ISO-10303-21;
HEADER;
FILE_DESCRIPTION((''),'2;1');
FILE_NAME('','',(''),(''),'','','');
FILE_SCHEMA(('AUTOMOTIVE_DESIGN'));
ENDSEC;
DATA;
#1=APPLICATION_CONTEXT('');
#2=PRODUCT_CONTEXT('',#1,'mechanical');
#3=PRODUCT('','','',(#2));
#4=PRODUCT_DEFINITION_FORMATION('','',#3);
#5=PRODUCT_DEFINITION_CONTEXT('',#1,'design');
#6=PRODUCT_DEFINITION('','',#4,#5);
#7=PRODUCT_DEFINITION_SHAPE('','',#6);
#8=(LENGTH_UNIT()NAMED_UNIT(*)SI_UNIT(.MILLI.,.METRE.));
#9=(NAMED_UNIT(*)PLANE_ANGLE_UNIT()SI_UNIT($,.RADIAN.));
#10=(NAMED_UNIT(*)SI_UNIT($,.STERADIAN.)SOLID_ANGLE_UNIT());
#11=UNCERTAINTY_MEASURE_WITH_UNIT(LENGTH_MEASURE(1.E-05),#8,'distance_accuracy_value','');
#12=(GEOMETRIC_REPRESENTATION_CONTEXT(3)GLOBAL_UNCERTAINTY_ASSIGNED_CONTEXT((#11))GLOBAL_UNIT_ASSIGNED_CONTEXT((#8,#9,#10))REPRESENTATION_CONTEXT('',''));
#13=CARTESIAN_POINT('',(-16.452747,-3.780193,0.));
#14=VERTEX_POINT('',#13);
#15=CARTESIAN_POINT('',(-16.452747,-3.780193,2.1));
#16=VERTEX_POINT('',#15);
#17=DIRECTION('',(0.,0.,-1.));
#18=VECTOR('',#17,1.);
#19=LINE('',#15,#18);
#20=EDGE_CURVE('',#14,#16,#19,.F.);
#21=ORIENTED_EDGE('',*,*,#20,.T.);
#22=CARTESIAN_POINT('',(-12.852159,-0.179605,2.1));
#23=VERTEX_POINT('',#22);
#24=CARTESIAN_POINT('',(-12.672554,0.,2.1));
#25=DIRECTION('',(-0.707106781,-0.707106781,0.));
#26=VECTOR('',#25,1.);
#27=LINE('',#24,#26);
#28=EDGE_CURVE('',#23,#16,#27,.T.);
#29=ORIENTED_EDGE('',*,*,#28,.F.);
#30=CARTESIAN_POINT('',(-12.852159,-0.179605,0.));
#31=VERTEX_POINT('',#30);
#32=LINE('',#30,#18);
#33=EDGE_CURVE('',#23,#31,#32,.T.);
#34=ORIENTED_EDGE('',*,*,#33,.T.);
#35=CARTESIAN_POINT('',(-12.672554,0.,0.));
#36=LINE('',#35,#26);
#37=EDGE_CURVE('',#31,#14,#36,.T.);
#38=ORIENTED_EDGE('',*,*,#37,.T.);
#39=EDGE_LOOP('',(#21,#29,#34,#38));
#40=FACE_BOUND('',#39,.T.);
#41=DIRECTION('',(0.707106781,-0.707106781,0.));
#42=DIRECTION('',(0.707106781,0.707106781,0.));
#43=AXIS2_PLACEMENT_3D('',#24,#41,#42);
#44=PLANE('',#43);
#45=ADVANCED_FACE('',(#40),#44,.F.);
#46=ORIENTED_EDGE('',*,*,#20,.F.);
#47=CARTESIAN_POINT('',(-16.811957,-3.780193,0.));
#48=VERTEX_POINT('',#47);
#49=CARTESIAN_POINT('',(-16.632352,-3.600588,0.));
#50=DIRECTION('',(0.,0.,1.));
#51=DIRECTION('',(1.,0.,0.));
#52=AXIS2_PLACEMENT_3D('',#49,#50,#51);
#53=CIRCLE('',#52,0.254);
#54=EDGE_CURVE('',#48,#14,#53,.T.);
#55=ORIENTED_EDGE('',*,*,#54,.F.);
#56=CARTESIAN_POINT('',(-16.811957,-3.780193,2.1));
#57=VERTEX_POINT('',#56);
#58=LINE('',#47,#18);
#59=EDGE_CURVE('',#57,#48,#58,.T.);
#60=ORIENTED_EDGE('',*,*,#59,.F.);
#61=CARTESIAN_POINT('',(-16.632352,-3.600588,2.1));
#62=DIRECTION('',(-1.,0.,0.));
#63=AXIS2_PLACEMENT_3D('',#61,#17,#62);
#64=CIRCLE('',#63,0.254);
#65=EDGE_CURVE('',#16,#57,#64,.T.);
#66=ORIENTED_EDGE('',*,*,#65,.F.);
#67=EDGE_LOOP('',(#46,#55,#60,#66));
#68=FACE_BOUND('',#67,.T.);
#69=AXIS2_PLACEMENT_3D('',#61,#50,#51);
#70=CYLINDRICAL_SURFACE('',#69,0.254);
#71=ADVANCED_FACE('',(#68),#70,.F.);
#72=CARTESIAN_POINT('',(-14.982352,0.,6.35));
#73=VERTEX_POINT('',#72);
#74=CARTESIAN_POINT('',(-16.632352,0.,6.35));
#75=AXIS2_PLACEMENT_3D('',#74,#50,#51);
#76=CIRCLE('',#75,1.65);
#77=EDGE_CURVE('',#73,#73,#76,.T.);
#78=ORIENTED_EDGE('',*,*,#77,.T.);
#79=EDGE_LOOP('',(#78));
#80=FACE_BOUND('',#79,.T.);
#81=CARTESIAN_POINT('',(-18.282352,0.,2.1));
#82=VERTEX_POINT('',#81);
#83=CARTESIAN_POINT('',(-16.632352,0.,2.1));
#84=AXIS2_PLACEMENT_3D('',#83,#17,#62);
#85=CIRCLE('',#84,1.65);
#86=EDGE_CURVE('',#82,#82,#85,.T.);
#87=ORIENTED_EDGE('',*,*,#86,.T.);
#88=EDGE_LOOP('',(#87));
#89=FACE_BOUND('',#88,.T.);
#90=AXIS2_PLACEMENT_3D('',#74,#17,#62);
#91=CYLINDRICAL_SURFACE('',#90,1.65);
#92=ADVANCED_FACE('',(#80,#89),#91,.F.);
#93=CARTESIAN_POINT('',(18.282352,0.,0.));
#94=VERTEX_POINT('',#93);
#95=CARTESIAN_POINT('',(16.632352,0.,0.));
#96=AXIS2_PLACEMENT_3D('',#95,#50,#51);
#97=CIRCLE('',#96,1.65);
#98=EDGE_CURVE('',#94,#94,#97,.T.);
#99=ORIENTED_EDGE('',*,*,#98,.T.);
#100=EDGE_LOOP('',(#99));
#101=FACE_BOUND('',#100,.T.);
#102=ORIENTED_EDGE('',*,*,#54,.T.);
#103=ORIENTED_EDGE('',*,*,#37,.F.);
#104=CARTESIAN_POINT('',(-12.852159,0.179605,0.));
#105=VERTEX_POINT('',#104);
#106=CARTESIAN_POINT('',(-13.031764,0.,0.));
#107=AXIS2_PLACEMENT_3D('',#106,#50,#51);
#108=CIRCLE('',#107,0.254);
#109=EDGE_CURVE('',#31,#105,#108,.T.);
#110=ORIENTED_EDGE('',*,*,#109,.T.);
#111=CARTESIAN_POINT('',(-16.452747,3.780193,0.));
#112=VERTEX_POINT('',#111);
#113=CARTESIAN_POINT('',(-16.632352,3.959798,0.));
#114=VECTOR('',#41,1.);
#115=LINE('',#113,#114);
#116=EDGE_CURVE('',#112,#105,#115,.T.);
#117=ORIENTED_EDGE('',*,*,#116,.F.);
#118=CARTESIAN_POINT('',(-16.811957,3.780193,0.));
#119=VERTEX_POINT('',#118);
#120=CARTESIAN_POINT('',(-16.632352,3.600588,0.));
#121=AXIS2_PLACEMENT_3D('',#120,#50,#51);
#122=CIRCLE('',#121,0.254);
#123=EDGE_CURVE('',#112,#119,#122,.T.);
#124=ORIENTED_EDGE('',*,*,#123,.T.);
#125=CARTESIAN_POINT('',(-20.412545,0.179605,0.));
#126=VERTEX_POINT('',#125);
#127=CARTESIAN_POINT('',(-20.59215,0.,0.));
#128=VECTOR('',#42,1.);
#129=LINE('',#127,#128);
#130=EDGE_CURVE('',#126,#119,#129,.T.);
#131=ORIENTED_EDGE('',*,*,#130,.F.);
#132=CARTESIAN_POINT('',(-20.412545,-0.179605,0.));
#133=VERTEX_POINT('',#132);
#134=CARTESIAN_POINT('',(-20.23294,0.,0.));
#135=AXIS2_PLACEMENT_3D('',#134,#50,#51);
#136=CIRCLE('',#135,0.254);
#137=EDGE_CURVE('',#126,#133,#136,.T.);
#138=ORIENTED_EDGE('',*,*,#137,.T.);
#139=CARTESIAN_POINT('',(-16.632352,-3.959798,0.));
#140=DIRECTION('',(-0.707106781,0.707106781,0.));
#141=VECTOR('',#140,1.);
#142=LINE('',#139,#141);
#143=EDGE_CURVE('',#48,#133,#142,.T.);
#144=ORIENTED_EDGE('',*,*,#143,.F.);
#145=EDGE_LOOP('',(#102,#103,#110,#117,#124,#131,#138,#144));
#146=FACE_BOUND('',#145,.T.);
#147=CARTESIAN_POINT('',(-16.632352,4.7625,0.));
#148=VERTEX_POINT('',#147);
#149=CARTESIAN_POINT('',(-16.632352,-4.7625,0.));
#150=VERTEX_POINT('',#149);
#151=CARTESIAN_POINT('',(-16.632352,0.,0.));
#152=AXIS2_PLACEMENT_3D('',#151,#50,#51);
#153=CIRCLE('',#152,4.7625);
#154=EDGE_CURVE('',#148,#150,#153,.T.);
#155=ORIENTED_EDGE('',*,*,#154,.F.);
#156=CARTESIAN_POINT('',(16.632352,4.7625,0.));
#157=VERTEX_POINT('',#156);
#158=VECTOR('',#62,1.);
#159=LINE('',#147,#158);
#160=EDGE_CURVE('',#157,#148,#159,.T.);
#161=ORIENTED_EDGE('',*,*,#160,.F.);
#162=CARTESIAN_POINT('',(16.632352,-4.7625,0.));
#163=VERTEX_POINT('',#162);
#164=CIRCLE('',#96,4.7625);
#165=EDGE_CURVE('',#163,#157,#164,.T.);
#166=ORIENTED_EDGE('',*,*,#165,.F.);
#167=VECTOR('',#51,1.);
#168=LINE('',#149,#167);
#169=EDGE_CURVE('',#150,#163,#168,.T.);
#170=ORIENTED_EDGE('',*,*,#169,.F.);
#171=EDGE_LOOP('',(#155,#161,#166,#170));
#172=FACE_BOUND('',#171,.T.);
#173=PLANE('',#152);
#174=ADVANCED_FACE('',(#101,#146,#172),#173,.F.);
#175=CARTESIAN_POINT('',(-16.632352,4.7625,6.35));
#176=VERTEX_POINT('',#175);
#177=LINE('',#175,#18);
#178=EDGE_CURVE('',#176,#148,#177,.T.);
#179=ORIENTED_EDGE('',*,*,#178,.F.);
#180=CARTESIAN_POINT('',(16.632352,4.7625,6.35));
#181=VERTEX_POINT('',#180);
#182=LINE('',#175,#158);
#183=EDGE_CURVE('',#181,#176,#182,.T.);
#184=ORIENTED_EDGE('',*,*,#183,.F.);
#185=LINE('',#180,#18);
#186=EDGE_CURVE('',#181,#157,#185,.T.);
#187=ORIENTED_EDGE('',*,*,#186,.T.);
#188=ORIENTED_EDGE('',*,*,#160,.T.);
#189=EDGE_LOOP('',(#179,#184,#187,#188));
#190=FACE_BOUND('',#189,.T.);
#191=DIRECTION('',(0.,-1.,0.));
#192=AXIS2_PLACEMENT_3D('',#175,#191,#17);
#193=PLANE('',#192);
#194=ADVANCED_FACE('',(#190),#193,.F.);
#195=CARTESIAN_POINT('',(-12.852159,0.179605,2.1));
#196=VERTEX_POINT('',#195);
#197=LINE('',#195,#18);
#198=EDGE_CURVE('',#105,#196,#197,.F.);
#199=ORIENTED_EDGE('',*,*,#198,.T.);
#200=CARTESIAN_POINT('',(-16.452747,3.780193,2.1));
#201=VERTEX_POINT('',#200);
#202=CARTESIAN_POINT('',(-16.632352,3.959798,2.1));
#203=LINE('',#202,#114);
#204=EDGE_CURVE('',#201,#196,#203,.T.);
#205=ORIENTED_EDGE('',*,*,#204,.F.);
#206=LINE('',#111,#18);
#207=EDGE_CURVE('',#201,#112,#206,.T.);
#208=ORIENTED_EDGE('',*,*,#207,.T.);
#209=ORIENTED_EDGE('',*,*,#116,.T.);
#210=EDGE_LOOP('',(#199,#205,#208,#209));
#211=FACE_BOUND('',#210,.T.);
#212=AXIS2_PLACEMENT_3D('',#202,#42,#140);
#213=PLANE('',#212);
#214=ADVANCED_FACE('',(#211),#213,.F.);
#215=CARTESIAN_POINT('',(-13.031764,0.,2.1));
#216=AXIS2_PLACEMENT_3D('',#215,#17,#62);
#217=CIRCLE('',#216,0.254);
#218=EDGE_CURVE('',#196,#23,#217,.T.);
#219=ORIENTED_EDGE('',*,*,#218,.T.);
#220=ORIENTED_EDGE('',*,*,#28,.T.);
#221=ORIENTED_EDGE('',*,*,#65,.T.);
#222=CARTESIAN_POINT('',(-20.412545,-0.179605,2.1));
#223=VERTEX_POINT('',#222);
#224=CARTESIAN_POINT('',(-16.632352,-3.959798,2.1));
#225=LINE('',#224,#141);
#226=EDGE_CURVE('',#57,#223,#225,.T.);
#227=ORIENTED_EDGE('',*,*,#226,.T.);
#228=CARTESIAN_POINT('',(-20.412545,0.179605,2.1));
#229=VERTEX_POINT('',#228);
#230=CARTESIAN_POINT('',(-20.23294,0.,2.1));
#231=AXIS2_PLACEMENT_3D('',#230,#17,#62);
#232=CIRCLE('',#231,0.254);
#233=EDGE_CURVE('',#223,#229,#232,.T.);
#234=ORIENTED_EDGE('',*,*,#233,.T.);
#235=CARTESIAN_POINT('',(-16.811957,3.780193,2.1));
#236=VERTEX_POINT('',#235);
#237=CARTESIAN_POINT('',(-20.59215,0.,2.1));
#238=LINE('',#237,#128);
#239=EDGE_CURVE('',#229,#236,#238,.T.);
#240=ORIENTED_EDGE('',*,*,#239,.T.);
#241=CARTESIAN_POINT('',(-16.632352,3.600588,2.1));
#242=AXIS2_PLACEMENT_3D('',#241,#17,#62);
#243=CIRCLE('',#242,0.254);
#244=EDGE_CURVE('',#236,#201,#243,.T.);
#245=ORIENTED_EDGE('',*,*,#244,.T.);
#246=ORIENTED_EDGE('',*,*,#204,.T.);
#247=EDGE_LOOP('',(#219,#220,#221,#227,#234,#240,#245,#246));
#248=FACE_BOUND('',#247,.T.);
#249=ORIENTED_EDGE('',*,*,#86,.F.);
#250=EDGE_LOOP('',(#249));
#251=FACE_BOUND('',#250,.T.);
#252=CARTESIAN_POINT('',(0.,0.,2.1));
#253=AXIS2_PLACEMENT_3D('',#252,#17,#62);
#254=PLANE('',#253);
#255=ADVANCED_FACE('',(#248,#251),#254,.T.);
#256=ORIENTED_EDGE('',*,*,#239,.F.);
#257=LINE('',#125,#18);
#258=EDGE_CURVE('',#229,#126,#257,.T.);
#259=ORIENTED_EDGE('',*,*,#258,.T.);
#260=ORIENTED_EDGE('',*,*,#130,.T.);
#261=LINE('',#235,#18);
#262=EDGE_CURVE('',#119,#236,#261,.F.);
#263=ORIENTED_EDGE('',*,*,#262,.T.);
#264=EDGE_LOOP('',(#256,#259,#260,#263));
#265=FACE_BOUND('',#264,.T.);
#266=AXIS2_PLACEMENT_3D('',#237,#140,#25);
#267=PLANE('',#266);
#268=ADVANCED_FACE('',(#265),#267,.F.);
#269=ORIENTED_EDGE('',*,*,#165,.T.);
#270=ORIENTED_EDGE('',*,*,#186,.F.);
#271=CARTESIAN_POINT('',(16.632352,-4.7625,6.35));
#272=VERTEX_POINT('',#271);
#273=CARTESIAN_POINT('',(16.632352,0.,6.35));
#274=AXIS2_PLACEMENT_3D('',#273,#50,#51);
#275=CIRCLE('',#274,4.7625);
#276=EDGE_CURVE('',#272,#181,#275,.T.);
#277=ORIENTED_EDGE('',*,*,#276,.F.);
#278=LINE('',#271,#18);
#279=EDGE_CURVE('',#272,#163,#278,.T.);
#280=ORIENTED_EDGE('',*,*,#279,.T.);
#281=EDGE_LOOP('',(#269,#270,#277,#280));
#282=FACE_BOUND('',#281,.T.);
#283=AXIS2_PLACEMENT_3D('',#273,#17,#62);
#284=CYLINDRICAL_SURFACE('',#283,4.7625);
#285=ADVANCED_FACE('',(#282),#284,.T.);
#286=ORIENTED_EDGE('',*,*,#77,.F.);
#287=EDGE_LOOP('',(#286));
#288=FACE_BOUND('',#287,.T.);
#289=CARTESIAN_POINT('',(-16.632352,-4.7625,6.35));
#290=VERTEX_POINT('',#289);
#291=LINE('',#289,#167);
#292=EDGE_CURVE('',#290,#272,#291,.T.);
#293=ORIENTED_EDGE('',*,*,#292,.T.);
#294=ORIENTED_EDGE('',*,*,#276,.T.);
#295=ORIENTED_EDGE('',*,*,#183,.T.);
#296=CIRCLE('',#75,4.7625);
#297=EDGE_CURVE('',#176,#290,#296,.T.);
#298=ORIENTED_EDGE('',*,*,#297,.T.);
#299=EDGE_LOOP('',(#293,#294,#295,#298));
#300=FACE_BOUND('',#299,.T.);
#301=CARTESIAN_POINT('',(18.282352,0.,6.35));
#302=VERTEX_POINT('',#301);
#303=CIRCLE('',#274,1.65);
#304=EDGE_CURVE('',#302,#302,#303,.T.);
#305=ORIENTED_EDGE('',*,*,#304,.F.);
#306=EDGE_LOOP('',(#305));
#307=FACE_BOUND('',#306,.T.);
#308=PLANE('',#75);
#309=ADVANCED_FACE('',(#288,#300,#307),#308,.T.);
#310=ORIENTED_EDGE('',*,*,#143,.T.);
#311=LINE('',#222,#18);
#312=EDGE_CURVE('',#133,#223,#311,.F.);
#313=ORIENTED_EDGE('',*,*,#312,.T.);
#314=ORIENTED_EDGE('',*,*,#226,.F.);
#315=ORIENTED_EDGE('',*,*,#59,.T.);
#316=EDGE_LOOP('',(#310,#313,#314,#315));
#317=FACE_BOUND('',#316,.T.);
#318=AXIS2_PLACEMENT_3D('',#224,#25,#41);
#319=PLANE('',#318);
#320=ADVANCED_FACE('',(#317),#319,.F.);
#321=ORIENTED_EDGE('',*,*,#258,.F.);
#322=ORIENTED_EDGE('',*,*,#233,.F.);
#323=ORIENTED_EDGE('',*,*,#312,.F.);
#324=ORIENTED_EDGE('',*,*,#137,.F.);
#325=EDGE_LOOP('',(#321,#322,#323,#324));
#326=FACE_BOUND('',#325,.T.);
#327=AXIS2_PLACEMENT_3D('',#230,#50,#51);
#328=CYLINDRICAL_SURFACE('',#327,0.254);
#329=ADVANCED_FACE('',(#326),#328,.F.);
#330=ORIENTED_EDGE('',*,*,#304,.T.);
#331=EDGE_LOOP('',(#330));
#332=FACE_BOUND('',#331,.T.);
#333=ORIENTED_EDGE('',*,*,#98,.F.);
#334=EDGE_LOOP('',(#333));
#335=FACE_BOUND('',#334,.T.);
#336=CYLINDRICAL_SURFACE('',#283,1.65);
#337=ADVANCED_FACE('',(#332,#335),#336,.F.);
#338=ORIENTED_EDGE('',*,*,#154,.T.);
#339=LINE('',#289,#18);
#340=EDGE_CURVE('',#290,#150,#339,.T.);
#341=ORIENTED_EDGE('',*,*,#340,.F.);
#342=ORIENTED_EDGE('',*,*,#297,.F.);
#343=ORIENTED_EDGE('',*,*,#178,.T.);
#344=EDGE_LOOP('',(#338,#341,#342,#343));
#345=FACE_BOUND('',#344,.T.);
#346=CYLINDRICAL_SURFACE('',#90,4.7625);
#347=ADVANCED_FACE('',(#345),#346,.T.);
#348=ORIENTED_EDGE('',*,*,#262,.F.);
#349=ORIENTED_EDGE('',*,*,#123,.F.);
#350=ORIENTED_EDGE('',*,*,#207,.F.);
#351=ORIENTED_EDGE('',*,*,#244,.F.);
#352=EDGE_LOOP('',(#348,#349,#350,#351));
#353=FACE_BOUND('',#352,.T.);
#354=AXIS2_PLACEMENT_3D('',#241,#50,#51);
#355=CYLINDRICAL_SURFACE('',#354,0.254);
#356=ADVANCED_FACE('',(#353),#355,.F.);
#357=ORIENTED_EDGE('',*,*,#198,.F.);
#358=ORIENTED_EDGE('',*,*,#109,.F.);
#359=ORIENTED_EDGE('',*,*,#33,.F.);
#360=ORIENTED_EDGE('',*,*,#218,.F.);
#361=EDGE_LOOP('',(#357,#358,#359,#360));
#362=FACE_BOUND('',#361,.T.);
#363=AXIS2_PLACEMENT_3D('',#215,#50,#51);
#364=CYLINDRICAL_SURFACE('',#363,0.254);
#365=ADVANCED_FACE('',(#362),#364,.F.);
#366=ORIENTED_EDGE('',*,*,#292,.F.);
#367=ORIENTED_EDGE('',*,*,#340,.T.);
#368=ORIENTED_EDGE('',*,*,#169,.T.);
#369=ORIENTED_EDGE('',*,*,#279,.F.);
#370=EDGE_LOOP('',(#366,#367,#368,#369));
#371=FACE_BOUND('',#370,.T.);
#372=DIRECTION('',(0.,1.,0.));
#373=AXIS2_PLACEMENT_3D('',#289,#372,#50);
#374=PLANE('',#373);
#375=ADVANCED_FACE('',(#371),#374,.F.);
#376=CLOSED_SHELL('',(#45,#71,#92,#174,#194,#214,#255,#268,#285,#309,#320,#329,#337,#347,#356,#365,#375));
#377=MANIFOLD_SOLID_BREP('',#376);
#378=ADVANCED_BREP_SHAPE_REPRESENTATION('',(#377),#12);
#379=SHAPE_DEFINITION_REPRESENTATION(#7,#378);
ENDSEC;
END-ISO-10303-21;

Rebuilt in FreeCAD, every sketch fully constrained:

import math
import FreeCAD as App
import Part
import Sketcher
Q = App.Units.Quantity


def edges_at(feature, points):
    """Names of the edges that pass closest to the given points."""
    edges = feature.Shape.Edges
    near = lambda p: min(range(len(edges)), key=lambda i: edges[i].distToShape(Part.Vertex(*p))[0])
    return sorted({f"Edge{near(p) + 1}" for p in points})


def add_polygon(sketch, points):
    """Adds a closed chain of lines whose ends are joined by coincident constraints."""
    first, n = sketch.GeometryCount, len(points)
    for a, b in zip(points, points[1:] + points[:1]):
        sketch.addGeometry(Part.LineSegment(App.Vector(*a, 0), App.Vector(*b, 0)), False)
    for i in range(n):
        sketch.addConstraint(Sketcher.Constraint("Coincident", first + i, 2, first + (i + 1) % n, 1))

doc = App.newDocument("Part")
params = doc.addObject("Spreadsheet::Sheet", "Params")
for row, (alias, value) in enumerate([
    ("sketch1_diameter", "3.3 mm"),
    ("pad1_length", "6.35 mm"),
    ("sketch2_length", "5.6 mm"),
    ("pocket1_length", "2.1 mm"),
    ("fillet_radius", "0.254 mm"),
], start=1):
    params.set(f"A{row}", alias)
    params.set(f"B{row}", "=" + value)
    params.setAlias(f"B{row}", alias)

body = doc.addObject("PartDesign::Body", "Body")

# Sketch on XY plane
sketch1 = body.newObject("Sketcher::SketchObject", "Sketch")
sketch1.AttachmentSupport = (doc.getObject("XY_Plane"), [""])
sketch1.MapMode = "FlatFace"
sketch1.addGeometry([
    Part.LineSegment(App.Vector(16.6, 4.8, 0), App.Vector(-16.6, 4.8, 0)),  # 0
    Part.ArcOfCircle(Part.Circle(App.Vector(-16.6, 0, 0), App.Vector(0, 0, 1), 4.8), math.radians(90), math.radians(270)),  # 1
    Part.LineSegment(App.Vector(-16.6, -4.8, 0), App.Vector(16.6, -4.8, 0)),  # 2
    Part.ArcOfCircle(Part.Circle(App.Vector(16.6, 0, 0), App.Vector(0, 0, 1), 4.8), math.radians(-90), math.radians(90)),  # 3
    Part.Circle(App.Vector(16.6, 0, 0), App.Vector(0, 0, 1), 1.6),  # 4
    Part.Circle(App.Vector(-16.6, 0, 0), App.Vector(0, 0, 1), 1.6),  # 5
], False)
sketch1.addConstraint([
    Sketcher.Constraint("Tangent", 0, 2, 1, 1),
    Sketcher.Constraint("Tangent", 1, 2, 2, 1),
    Sketcher.Constraint("Tangent", 2, 2, 3, 1),
    Sketcher.Constraint("Tangent", 3, 2, 0, 1),
    Sketcher.Constraint("Horizontal", 0),
    Sketcher.Constraint("Horizontal", 2),
    Sketcher.Constraint("Coincident", 4, 3, 3, 3),
    Sketcher.Constraint("Coincident", 5, 3, 1, 3),
    Sketcher.Constraint("Equal", 4, 5),
    Sketcher.Constraint("Symmetric", 1, 3, 3, 3, -1, 1),
    Sketcher.Constraint("Diameter", 4, Q("3.3 mm")),
    Sketcher.Constraint("Radius", 1, Q("4.7625 mm")),
    Sketcher.Constraint("DistanceX", 0, 2, 0, 1, Q("33.264704 mm")),
])
sketch1.setExpression("Constraints[10]", "Params.sketch1_diameter")
pad1 = body.newObject("PartDesign::Pad", "Pad")
pad1.Profile = sketch1
pad1.setExpression("Length", "Params.pad1_length")

# Sketch on XY plane
sketch2 = body.newObject("Sketcher::SketchObject", "Sketch001")
sketch2.AttachmentSupport = (doc.getObject("XY_Plane"), [""])
sketch2.MapMode = "FlatFace"
add_polygon(sketch2, [(-13, 0), (-17, -4), (-21, 0), (-17, 4)])  # lines 0-3
sketch2.addConstraint([
    Sketcher.Constraint("Symmetric", 0, 2, 2, 2, -1),
    Sketcher.Constraint("PointOnObject", 1, 2, -1),
    Sketcher.Constraint("PointOnObject", 3, 2, -1),
    Sketcher.Constraint("Perpendicular", 0, 1),
    Sketcher.Constraint("Perpendicular", 1, 2),
    Sketcher.Constraint("Distance", 0, Q("5.6 mm")),
    Sketcher.Constraint("DistanceX", 0, 2, -1, 1, Q("16.632352 mm")),
])
sketch2.setExpression("Constraints[9]", "Params.sketch2_length")
pocket1 = body.newObject("PartDesign::Pocket", "Pocket")
pocket1.Profile = sketch2
pocket1.setExpression("Length", "Params.pocket1_length")
pocket1.Reversed = True
doc.recompute()

fillet = body.newObject("PartDesign::Fillet", "Fillet")
fillet.Base = (pocket1, edges_at(pocket1, [
    (-20.592, 0, 1.05),
    (-16.632, -3.96, 1.05),
    (-12.673, 0, 1.05),
    (-16.632, 3.96, 1.05),
]))
fillet.setExpression("Radius", "Params.fillet_radius")

doc.recompute()
